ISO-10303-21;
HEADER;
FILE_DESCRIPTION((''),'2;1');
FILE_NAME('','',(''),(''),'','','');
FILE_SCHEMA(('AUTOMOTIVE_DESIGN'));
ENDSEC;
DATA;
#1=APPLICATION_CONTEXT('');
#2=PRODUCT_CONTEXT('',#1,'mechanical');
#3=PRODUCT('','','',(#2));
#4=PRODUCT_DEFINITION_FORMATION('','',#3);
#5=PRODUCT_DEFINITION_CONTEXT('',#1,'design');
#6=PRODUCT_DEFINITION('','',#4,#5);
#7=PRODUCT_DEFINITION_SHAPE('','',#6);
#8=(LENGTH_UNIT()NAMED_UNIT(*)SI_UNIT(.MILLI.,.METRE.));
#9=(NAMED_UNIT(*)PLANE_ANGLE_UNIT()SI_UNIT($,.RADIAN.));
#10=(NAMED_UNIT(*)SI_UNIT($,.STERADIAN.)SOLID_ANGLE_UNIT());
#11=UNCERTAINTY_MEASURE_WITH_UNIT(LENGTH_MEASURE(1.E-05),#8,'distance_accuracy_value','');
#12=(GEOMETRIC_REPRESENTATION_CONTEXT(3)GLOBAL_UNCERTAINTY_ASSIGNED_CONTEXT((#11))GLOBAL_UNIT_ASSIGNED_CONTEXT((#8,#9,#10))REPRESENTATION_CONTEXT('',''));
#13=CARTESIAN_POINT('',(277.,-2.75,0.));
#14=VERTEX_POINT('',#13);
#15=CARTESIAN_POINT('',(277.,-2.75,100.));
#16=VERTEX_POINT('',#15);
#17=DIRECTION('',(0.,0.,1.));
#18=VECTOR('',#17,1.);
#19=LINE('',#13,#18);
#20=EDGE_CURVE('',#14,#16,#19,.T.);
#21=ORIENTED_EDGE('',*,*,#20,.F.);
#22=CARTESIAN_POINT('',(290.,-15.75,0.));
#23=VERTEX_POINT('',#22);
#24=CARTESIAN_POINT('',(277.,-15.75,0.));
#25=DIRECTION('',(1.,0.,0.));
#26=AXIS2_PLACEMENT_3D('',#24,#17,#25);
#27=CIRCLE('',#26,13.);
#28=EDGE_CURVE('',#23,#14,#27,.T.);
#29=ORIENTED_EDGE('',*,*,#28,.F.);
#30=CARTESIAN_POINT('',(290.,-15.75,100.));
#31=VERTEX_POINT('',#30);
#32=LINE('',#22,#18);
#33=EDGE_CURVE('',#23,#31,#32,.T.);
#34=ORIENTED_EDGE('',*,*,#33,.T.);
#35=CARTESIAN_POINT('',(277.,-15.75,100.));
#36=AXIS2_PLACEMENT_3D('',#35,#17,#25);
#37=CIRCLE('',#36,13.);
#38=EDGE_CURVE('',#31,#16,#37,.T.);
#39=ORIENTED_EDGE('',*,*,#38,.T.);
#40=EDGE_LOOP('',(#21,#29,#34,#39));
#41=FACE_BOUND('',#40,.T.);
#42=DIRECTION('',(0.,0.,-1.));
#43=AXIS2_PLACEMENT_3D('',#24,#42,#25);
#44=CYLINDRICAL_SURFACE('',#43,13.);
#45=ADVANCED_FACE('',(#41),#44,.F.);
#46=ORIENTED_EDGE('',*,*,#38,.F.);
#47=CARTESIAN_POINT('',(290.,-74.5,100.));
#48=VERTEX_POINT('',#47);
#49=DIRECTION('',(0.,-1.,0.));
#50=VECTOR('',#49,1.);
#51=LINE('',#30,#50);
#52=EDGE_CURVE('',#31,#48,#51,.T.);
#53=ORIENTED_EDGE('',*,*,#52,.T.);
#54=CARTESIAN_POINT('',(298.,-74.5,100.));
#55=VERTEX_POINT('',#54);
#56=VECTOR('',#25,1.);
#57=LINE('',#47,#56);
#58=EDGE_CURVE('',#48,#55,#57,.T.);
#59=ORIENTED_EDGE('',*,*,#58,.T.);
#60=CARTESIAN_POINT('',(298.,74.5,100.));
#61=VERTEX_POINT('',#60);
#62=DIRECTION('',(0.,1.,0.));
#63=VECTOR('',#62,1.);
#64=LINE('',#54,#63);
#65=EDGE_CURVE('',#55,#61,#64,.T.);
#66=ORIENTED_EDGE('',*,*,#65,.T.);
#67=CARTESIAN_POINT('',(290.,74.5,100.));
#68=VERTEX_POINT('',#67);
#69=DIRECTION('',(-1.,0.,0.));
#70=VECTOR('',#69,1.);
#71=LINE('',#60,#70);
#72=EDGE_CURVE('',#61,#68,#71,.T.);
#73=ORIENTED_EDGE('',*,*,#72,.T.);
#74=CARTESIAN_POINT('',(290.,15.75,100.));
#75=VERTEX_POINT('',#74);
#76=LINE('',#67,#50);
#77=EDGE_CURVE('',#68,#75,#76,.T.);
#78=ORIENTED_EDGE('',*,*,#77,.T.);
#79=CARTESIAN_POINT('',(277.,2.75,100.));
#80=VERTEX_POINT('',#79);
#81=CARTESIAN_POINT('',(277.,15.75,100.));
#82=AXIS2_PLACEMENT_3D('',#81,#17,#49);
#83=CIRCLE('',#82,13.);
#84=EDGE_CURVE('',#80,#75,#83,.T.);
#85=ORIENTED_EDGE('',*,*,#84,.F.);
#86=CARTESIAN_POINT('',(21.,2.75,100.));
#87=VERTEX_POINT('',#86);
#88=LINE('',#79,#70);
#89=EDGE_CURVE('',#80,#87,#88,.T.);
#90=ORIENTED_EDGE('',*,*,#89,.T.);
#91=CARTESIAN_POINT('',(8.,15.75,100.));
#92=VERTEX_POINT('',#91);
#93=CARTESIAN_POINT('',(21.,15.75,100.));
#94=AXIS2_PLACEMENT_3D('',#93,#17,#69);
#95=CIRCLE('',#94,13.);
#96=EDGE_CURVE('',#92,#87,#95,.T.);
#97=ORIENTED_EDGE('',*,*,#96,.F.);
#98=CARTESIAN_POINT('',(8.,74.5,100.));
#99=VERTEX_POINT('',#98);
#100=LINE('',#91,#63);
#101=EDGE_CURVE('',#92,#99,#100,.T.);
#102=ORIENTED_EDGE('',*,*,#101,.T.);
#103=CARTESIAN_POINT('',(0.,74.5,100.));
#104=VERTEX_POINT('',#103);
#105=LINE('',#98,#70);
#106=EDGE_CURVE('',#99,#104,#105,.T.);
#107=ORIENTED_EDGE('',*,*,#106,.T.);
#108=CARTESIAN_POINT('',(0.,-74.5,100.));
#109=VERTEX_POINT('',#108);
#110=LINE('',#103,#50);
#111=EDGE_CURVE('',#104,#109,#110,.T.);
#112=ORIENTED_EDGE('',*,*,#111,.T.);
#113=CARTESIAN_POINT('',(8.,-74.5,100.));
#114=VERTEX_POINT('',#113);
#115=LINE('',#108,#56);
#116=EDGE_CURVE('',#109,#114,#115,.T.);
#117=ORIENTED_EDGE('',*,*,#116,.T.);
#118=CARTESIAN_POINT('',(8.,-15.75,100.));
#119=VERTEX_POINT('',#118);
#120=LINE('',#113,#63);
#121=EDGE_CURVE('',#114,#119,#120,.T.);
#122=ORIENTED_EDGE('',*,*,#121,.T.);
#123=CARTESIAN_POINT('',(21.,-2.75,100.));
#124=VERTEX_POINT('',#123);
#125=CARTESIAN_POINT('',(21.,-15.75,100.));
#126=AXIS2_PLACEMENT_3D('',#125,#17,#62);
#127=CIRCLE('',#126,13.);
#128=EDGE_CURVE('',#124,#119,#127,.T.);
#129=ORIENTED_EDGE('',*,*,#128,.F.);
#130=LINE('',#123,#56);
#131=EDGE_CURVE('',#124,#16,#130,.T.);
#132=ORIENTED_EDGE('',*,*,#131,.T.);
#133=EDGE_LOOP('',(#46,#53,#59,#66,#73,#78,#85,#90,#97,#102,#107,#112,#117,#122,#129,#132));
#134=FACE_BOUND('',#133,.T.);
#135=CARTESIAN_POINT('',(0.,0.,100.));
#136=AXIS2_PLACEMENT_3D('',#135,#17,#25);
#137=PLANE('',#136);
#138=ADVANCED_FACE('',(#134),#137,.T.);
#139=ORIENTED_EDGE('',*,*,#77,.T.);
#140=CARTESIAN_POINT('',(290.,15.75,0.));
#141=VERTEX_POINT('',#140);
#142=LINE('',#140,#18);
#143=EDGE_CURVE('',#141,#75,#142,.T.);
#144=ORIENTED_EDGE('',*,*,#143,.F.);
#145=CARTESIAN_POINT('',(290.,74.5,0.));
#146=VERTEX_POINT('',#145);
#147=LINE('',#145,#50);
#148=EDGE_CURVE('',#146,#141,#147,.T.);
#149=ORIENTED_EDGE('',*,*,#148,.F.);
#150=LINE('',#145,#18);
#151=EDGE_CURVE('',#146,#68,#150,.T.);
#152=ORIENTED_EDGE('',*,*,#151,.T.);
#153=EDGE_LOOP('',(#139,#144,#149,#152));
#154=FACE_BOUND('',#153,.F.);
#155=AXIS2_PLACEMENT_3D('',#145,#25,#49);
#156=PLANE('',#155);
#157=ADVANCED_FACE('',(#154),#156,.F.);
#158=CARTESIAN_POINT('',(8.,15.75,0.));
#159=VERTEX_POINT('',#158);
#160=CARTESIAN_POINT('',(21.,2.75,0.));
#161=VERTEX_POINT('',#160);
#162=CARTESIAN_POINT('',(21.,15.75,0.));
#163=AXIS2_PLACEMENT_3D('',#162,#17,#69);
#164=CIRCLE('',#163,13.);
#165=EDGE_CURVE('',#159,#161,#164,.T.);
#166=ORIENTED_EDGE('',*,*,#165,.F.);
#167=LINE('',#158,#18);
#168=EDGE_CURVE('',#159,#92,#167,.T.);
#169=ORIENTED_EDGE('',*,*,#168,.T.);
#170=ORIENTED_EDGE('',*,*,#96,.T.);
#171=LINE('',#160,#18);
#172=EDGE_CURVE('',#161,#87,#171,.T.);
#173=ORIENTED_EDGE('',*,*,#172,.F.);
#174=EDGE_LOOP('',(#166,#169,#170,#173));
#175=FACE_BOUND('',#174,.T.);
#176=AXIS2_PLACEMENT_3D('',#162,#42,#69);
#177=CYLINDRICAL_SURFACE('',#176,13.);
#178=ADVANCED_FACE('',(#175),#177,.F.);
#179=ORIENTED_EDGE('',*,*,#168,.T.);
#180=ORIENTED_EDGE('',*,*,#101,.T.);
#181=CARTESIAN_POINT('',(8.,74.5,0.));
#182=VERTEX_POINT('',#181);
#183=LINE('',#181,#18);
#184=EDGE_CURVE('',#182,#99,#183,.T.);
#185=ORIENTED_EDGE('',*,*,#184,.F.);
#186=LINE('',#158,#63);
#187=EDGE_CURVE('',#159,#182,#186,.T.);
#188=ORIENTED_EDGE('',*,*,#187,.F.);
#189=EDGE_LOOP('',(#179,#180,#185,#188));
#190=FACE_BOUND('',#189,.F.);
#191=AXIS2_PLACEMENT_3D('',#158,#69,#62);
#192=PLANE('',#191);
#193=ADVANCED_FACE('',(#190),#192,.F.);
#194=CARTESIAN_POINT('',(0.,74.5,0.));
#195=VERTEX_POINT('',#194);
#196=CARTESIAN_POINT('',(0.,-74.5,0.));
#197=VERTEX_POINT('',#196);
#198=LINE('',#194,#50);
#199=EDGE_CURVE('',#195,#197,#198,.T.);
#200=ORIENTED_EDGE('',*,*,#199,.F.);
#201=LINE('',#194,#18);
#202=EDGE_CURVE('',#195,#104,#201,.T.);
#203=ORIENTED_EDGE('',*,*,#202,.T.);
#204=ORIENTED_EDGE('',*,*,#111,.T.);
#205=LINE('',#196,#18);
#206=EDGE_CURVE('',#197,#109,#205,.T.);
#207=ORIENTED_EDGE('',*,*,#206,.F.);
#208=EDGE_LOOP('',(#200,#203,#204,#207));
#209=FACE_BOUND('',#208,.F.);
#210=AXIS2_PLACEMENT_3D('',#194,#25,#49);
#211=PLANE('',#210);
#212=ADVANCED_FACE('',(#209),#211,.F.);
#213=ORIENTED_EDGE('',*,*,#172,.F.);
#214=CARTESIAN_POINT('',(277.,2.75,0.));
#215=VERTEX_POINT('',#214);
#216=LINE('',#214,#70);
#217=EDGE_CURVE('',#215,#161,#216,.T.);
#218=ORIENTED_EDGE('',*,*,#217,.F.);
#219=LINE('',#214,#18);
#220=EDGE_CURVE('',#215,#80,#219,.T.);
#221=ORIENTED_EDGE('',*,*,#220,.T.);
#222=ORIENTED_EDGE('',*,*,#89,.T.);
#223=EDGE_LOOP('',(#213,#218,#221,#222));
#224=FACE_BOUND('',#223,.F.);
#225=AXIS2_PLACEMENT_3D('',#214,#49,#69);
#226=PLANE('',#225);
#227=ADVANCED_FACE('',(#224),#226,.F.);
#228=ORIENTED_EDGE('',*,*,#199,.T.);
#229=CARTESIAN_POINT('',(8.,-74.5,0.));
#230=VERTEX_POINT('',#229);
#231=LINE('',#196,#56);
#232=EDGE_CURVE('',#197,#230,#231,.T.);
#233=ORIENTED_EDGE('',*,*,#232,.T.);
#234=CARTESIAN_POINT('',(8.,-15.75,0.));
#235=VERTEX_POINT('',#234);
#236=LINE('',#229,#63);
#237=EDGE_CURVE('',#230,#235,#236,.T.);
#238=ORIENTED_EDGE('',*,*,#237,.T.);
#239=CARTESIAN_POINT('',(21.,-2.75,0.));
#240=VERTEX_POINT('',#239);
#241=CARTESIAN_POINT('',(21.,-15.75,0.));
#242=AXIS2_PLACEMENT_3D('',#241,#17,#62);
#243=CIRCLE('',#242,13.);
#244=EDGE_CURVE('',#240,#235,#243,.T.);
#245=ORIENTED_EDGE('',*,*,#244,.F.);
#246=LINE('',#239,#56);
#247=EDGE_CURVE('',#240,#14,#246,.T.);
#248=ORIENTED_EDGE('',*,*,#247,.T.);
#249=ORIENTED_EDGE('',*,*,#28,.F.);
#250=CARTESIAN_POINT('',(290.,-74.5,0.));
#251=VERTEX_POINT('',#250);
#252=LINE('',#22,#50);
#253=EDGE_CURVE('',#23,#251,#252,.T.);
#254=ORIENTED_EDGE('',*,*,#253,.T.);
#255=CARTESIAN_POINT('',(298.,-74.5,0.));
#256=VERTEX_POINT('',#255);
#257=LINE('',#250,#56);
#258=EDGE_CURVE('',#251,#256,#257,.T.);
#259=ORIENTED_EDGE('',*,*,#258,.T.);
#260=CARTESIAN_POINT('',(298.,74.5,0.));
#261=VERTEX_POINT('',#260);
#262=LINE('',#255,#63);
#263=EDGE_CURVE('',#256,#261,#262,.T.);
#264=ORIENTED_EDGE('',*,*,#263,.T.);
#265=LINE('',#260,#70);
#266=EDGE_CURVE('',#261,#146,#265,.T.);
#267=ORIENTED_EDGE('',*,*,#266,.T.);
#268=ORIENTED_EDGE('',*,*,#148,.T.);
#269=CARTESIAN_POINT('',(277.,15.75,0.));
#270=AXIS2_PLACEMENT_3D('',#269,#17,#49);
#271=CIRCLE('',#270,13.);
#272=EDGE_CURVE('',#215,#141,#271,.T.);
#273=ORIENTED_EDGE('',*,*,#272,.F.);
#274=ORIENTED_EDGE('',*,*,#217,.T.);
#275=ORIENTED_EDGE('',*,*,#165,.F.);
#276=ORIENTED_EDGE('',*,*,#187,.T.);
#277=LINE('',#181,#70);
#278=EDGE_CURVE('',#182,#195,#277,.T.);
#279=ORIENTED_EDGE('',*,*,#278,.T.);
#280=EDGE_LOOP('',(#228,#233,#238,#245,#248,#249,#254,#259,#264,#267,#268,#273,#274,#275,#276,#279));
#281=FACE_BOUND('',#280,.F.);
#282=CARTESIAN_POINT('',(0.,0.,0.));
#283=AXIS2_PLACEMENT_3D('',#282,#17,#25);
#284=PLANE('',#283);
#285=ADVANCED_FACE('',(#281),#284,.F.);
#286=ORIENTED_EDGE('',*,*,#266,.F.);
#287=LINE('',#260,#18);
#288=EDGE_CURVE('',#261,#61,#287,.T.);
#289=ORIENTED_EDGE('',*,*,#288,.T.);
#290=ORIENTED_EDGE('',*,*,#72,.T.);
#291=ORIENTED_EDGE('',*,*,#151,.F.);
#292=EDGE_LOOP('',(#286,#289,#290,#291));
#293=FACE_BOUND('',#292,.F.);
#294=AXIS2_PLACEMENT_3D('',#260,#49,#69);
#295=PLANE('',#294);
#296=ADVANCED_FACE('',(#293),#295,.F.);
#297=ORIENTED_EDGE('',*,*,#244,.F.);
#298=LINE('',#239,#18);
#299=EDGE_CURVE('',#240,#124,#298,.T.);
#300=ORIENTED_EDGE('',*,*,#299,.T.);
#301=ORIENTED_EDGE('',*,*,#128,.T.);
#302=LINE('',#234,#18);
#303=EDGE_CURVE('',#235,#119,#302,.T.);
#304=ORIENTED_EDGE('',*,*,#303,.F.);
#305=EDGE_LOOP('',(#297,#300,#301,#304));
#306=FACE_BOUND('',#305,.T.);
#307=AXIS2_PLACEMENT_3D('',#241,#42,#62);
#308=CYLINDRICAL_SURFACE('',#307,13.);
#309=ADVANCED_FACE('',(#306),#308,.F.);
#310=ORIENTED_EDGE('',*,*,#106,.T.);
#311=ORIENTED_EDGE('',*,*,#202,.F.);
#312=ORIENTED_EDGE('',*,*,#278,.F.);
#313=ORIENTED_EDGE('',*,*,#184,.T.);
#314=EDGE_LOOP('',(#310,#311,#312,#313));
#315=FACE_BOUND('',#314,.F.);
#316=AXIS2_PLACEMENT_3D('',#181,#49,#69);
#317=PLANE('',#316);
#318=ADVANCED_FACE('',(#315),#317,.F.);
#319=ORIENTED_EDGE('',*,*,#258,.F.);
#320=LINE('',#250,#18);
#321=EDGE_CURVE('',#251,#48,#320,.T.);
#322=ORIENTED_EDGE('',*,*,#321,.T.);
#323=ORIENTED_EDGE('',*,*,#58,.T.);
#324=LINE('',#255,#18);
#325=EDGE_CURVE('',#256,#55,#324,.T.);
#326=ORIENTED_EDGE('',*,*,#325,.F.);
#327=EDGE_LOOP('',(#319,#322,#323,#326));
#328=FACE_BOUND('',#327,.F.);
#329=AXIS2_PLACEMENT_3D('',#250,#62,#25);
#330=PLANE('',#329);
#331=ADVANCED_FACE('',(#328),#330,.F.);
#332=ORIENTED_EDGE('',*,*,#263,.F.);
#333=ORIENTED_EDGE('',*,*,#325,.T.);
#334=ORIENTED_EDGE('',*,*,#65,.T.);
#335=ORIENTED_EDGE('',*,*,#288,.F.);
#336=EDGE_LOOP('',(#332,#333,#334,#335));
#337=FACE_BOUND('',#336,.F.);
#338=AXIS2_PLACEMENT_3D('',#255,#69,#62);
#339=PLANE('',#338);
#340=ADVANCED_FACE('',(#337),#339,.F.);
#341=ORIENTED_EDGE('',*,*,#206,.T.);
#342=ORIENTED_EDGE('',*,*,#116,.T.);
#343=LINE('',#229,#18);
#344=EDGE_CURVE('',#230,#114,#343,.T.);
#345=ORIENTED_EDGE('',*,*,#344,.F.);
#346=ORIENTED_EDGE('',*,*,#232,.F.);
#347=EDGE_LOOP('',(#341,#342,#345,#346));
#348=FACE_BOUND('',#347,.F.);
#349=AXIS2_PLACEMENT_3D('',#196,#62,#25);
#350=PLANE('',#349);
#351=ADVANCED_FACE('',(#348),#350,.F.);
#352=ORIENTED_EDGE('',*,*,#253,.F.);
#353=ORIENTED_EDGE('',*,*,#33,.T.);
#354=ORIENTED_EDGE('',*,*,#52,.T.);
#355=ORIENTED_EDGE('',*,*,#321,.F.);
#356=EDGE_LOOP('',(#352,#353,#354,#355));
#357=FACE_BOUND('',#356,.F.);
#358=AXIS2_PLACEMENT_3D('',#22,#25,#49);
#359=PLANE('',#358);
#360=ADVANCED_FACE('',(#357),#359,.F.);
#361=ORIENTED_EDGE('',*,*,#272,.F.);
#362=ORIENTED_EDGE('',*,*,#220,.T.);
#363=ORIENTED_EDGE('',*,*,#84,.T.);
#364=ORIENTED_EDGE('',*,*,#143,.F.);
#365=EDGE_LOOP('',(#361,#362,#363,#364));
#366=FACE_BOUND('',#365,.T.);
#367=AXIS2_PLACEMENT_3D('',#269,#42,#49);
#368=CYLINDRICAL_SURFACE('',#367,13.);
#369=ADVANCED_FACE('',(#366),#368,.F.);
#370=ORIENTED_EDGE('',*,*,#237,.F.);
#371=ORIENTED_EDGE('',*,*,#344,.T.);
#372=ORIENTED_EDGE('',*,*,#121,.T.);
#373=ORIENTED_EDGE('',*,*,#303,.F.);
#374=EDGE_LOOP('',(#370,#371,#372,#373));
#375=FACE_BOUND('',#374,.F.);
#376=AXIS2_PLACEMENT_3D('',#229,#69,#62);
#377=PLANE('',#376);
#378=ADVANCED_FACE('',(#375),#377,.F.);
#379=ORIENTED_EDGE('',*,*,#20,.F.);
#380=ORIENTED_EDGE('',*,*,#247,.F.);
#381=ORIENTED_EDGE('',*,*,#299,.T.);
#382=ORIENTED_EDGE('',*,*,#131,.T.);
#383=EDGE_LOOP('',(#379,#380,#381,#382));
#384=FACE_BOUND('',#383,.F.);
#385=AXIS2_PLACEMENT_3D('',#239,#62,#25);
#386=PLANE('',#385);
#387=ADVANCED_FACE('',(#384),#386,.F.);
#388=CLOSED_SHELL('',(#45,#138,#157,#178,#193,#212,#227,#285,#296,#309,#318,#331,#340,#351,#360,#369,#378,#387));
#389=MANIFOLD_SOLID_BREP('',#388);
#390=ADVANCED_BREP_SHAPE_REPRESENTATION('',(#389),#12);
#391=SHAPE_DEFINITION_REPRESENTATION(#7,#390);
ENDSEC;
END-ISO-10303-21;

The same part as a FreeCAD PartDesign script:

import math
import FreeCAD as App
import Part
import Sketcher
Q = App.Units.Quantity

doc = App.newDocument("Part")
params = doc.addObject("Spreadsheet::Sheet", "Params")
for row, (alias, value) in enumerate([
    ("sketch1_radius", "13 mm"),
    ("sketch1_width", "8 mm"),
    ("sketch1_width2", "256 mm"),
    ("sketch1_height", "149 mm"),
    ("sketch1_height2", "58.75 mm"),
    ("pad1_length", "100 mm"),
], start=1):
    params.set(f"A{row}", alias)
    params.set(f"B{row}", "=" + value)
    params.setAlias(f"B{row}", alias)

body = doc.addObject("PartDesign::Body", "Body")

# Sketch on XY plane
sketch1 = doc.addObject("Sketcher::SketchObject", "Sketch")
body.addObject(sketch1)
sketch1.AttachmentSupport = (doc.XY_Plane, [""])
sketch1.MapMode = "FlatFace"
sketch1.addGeometry([
    Part.LineSegment(App.Vector(8, 74, 0), App.Vector(0, 74, 0)),  # 0
    Part.LineSegment(App.Vector(0, 74, 0), App.Vector(0, -74, 0)),  # 1
    Part.LineSegment(App.Vector(0, -74, 0), App.Vector(8, -74, 0)),  # 2
    Part.LineSegment(App.Vector(8, -74, 0), App.Vector(8, -16, 0)),  # 3
    Part.ArcOfCircle(Part.Circle(App.Vector(21, -16, 0), App.Vector(0, 0, 1), 13), math.radians(90), math.radians(180)),  # 4
    Part.LineSegment(App.Vector(21, -3, 0), App.Vector(277, -3, 0)),  # 5
    Part.ArcOfCircle(Part.Circle(App.Vector(277, -16, 0), App.Vector(0, 0, 1), 13), math.radians(0), math.radians(90)),  # 6
    Part.LineSegment(App.Vector(290, -16, 0), App.Vector(290, -74, 0)),  # 7
    Part.LineSegment(App.Vector(290, -74, 0), App.Vector(298, -74, 0)),  # 8
    Part.LineSegment(App.Vector(298, -74, 0), App.Vector(298, 74, 0)),  # 9
    Part.LineSegment(App.Vector(298, 74, 0), App.Vector(290, 74, 0)),  # 10
    Part.LineSegment(App.Vector(290, 74, 0), App.Vector(290, 16, 0)),  # 11
    Part.ArcOfCircle(Part.Circle(App.Vector(277, 16, 0), App.Vector(0, 0, 1), 13), math.radians(-90), math.radians(0)),  # 12
    Part.LineSegment(App.Vector(277, 3, 0), App.Vector(21, 3, 0)),  # 13
    Part.ArcOfCircle(Part.Circle(App.Vector(21, 16, 0), App.Vector(0, 0, 1), 13), math.radians(180), math.radians(270)),  # 14
    Part.LineSegment(App.Vector(8, 16, 0), App.Vector(8, 74, 0)),  # 15
], False)
sketch1.addConstraint([
    Sketcher.Constraint("Coincident", 0, 2, 1, 1),
    Sketcher.Constraint("Coincident", 1, 2, 2, 1),
    Sketcher.Constraint("Coincident", 2, 2, 3, 1),
    Sketcher.Constraint("Tangent", 3, 2, 4, 2),
    Sketcher.Constraint("Tangent", 4, 1, 5, 1),
    Sketcher.Constraint("Tangent", 5, 2, 6, 2),
    Sketcher.Constraint("Tangent", 6, 1, 7, 1),
    Sketcher.Constraint("Coincident", 7, 2, 8, 1),
    Sketcher.Constraint("Coincident", 8, 2, 9, 1),
    Sketcher.Constraint("Coincident", 9, 2, 10, 1),
    Sketcher.Constraint("Coincident", 10, 2, 11, 1),
    Sketcher.Constraint("Tangent", 11, 2, 12, 2),
    Sketcher.Constraint("Tangent", 12, 1, 13, 1),
    Sketcher.Constraint("Tangent", 13, 2, 14, 2),
    Sketcher.Constraint("Tangent", 14, 1, 15, 1),
    Sketcher.Constraint("Coincident", 15, 2, 0, 1),
    Sketcher.Constraint("Horizontal", 0),
    Sketcher.Constraint("Vertical", 1),
    Sketcher.Constraint("Horizontal", 2),
    Sketcher.Constraint("Vertical", 3),
    Sketcher.Constraint("Horizontal", 5),
    Sketcher.Constraint("Vertical", 7),
    Sketcher.Constraint("Horizontal", 8),
    Sketcher.Constraint("Vertical", 9),
    Sketcher.Constraint("Horizontal", 10),
    Sketcher.Constraint("Vertical", 11),
    Sketcher.Constraint("Horizontal", 13),
    Sketcher.Constraint("Vertical", 15),
    Sketcher.Constraint("Equal", 4, 6),
    Sketcher.Constraint("Equal", 6, 12),
    Sketcher.Constraint("Equal", 12, 14),
    Sketcher.Constraint("Symmetric", 0, 2, 1, 2, -1, 1),
    Sketcher.Constraint("Symmetric", 6, 3, 12, 3, -1),
    Sketcher.Constraint("Horizontal", 2, 2, 7, 2),
    Sketcher.Constraint("Horizontal", 0, 2, 9, 2),
    Sketcher.Constraint("Vertical", 4, 3, 14, 3),
    Sketcher.Constraint("Equal", 2, 8),
    Sketcher.Constraint("Radius", 4, Q("13 mm")),
    Sketcher.Constraint("DistanceX", 0, 2, 0, 1, Q("8 mm")),
    Sketcher.Constraint("DistanceX", 5, 1, 5, 2, Q("256 mm")),
    Sketcher.Constraint("DistanceY", 1, 2, 1, 1, Q("149 mm")),
    Sketcher.Constraint("DistanceY", 3, 1, 3, 2, Q("58.75 mm")),
])
sketch1.setExpression("Constraints[37]", "Params.sketch1_radius")
sketch1.setExpression("Constraints[38]", "Params.sketch1_width")
sketch1.setExpression("Constraints[39]", "Params.sketch1_width2")
sketch1.setExpression("Constraints[40]", "Params.sketch1_height")
sketch1.setExpression("Constraints[41]", "Params.sketch1_height2")
pad1 = doc.addObject("PartDesign::Pad", "Pad")
body.addObject(pad1)
pad1.Profile = sketch1
pad1.setExpression("Length", "Params.pad1_length")

doc.recompute()
